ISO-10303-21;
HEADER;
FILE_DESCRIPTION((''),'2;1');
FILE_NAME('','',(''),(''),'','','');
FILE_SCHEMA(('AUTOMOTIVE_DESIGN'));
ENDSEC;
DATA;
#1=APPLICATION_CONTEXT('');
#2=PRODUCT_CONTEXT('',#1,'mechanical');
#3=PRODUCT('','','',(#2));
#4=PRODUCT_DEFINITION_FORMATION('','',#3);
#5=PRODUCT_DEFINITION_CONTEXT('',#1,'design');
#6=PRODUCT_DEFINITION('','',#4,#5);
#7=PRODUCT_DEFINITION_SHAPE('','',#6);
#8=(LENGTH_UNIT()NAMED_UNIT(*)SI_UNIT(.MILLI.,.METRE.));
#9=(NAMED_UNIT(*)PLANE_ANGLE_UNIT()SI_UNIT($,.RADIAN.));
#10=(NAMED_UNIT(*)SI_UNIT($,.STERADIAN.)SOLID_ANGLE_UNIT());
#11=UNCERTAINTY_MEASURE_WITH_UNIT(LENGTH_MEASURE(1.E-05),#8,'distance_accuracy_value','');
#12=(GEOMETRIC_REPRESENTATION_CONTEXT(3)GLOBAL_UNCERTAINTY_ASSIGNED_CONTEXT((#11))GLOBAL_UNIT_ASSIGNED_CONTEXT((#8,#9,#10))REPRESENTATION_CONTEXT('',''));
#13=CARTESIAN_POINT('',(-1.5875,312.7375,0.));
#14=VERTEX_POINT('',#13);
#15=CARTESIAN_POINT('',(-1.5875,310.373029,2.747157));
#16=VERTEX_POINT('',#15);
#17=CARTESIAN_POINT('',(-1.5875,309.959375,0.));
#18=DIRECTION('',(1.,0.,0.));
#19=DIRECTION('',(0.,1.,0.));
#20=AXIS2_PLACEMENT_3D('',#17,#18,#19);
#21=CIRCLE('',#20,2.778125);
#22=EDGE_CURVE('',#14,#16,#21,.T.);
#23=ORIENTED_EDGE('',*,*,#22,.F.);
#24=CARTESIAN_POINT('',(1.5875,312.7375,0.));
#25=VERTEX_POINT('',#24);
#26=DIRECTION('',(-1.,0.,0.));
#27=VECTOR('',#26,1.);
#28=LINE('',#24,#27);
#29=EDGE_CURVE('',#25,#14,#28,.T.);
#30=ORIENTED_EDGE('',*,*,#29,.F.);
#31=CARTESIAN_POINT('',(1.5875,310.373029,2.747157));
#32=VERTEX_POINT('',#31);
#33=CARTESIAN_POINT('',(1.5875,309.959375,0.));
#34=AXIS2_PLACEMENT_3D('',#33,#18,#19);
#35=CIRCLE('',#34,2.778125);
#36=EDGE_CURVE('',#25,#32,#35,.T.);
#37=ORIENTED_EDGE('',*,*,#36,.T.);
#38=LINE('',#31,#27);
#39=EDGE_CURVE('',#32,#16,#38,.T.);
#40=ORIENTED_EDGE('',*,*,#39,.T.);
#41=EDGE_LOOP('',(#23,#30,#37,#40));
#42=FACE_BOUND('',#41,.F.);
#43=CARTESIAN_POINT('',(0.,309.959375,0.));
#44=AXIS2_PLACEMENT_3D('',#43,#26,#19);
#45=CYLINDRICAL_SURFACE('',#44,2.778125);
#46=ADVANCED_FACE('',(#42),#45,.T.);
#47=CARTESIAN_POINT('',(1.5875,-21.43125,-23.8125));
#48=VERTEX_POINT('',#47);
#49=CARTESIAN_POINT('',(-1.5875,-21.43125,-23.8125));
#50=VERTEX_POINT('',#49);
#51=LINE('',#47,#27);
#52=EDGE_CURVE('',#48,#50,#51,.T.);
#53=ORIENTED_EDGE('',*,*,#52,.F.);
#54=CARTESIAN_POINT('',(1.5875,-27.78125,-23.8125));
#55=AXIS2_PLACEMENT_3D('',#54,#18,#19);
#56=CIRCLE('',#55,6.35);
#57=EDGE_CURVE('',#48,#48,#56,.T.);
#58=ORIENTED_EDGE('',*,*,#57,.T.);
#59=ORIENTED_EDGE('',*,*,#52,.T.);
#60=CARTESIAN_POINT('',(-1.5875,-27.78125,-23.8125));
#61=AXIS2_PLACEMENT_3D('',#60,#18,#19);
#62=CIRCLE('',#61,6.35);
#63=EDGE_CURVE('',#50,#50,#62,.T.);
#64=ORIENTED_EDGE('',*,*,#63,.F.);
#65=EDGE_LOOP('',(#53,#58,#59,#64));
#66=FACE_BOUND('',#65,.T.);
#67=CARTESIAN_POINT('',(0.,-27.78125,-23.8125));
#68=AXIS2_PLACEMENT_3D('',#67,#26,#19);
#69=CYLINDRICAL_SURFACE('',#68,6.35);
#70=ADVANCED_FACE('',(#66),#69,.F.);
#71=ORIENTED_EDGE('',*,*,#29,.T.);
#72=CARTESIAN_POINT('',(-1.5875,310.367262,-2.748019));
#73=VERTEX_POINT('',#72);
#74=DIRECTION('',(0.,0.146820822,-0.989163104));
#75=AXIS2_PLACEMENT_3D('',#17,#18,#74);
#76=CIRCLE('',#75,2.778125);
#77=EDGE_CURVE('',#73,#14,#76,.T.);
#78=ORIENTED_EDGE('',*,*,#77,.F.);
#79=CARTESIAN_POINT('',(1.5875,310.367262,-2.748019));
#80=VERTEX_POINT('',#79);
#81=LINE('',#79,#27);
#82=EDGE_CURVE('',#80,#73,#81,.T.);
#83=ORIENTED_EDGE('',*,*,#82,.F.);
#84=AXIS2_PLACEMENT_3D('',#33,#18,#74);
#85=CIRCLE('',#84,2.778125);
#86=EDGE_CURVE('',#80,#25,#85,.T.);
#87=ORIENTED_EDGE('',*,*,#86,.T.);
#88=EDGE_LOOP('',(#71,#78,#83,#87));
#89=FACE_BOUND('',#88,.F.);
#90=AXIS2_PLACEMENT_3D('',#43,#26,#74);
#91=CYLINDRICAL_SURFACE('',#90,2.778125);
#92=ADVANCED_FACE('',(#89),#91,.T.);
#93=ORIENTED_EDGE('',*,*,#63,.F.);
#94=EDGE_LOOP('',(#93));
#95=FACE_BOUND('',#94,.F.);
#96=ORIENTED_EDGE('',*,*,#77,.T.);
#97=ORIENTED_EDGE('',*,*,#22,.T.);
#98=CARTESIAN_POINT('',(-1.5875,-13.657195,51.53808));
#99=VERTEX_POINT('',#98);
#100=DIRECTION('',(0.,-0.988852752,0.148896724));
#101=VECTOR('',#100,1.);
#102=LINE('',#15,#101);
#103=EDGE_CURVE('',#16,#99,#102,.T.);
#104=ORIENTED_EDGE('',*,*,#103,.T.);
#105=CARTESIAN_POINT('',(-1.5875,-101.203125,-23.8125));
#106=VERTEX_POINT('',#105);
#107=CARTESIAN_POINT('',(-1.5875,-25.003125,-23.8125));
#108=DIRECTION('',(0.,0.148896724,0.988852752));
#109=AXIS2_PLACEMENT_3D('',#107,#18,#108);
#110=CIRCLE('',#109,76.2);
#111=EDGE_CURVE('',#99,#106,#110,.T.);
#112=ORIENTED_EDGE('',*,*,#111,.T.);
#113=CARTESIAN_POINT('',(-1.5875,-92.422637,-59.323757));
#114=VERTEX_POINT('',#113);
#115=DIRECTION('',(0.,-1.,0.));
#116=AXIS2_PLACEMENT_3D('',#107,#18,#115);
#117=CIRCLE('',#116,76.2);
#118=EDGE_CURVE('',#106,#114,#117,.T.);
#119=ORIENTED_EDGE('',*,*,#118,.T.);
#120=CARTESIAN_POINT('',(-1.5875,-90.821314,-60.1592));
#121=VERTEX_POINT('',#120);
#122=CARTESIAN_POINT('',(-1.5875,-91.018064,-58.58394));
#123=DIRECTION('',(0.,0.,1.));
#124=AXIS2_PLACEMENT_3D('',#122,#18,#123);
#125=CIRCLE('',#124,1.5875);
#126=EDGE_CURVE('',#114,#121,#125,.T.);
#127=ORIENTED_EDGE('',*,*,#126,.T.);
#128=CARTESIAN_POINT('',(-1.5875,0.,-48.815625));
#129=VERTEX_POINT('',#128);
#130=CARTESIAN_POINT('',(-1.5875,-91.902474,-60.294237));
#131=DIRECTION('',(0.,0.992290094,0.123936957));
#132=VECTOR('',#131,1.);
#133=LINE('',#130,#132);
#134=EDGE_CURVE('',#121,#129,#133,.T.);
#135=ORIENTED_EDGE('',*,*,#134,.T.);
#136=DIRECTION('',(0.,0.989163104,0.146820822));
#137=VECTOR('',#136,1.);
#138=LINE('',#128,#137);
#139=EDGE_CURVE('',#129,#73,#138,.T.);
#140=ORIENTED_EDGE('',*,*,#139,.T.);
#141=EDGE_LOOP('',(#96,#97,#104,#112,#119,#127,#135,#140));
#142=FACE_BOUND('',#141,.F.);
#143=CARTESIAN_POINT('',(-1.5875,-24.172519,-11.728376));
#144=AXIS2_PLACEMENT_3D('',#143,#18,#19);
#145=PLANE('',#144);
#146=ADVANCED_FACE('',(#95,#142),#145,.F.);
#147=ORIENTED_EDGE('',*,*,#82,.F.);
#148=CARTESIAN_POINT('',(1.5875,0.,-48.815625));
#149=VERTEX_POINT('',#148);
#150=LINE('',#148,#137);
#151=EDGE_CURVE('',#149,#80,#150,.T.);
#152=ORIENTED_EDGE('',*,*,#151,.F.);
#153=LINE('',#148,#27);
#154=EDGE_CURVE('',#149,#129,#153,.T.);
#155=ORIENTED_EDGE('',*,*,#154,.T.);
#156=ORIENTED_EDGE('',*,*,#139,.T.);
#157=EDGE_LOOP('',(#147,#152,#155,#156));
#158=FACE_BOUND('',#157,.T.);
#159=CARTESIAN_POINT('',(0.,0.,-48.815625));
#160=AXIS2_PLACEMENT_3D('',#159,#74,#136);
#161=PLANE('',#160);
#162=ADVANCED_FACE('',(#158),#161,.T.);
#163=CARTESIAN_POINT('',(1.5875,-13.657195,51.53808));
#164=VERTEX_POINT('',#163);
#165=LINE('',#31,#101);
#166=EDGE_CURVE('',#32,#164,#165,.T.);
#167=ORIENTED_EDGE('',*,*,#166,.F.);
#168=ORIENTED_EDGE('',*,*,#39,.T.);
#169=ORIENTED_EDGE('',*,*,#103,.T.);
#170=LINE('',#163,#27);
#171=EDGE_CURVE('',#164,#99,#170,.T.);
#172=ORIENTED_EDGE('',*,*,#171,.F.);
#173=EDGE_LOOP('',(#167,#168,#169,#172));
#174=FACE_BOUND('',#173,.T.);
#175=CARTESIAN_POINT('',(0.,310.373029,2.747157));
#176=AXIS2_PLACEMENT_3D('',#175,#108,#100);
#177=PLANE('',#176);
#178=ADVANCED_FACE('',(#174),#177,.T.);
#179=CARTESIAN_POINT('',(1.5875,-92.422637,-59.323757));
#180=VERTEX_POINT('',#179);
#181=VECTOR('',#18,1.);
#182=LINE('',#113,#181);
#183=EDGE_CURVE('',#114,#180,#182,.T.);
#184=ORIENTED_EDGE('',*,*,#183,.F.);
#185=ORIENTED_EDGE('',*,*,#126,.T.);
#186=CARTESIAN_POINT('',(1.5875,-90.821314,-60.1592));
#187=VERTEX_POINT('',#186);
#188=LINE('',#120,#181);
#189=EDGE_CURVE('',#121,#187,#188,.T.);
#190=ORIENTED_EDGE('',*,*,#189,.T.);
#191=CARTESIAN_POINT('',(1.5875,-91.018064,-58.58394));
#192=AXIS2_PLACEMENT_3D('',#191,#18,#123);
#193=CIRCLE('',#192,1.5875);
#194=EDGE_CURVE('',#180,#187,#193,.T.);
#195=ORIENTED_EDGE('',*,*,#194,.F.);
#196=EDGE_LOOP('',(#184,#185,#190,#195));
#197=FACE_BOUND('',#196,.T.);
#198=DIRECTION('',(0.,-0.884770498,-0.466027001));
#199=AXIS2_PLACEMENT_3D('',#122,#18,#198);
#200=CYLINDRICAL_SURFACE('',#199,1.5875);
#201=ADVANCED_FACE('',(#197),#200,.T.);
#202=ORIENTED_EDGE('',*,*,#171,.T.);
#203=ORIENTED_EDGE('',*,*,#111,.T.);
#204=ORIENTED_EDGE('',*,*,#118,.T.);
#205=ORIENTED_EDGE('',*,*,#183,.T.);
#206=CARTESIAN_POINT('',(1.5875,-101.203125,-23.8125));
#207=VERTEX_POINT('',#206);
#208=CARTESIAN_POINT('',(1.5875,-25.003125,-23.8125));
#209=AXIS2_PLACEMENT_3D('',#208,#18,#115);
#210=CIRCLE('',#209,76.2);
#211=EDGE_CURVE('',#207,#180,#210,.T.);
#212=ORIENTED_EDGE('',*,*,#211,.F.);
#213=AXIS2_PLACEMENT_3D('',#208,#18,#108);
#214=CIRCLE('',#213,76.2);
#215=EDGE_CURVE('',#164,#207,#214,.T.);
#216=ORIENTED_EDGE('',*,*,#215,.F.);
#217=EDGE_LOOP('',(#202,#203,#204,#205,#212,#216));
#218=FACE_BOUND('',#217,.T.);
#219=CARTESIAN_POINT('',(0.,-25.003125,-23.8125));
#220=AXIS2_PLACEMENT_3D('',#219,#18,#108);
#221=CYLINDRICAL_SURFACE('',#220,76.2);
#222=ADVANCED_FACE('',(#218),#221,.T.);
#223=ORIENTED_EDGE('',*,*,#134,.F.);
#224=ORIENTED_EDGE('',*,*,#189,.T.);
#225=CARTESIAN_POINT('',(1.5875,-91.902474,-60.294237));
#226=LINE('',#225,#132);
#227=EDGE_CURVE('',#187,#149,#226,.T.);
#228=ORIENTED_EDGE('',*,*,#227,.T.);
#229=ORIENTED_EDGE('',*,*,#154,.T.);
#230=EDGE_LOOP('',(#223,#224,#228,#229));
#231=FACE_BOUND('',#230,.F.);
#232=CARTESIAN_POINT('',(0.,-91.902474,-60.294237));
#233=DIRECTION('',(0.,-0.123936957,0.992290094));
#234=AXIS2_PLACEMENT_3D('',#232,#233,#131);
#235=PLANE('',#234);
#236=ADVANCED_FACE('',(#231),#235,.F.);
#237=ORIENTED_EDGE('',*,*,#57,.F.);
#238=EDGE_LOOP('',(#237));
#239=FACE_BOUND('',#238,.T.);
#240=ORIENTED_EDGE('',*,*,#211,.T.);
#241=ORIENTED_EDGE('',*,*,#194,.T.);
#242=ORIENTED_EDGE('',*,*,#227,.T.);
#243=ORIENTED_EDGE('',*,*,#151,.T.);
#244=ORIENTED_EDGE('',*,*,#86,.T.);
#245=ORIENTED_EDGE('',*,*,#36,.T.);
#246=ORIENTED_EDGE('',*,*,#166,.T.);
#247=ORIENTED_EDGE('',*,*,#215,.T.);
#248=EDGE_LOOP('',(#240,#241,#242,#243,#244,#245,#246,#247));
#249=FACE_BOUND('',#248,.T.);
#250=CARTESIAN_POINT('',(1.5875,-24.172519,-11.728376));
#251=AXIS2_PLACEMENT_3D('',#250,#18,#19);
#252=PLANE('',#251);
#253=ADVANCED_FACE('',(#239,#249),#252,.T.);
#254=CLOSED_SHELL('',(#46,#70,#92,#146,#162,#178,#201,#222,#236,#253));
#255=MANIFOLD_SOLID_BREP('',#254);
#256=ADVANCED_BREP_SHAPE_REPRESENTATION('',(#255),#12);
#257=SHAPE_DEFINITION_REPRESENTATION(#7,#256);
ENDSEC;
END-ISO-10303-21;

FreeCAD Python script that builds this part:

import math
import FreeCAD as App
import Part
import Sketcher
Q = App.Units.Quantity


def edges_at(feature, points):
    """Names of the edges that pass closest to the given points."""
    edges = feature.Shape.Edges
    near = lambda p: min(range(len(edges)), key=lambda i: edges[i].distToShape(Part.Vertex(*p))[0])
    return sorted({f"Edge{near(p) + 1}" for p in points})

doc = App.newDocument("Part")
body = doc.addObject("PartDesign::Body", "Body")

# Sketch on YZ plane
sketch1 = body.newObject("Sketcher::SketchObject", "Sketch")
sketch1.AttachmentSupport = (doc.getObject("YZ_Plane"), [""])
sketch1.MapMode = "FlatFace"
sketch1.addGeometry(Part.ArcOfCircle(Part.Circle(App.Vector(-25.003125, -23.8125, 0), App.Vector(0, 0, 1), 76.2), math.radians(81.437004), math.radians(180)), False)
sketch1.addGeometry(Part.ArcOfCircle(Part.Circle(App.Vector(-25.003125, -23.8125, 0), App.Vector(0, 0, 1), 76.2), math.radians(180), math.radians(208.60464)), False)
sketch1.addGeometry(Part.LineSegment(App.Vector(-91.902474, -60.294237, 0), App.Vector(0, -48.815625, 0)), False)
sketch1.addGeometry(Part.LineSegment(App.Vector(0, -48.815625, 0), App.Vector(310.367262, -2.748019, 0)), False)
sketch1.addGeometry(Part.ArcOfCircle(Part.Circle(App.Vector(309.959375, 0, 0), App.Vector(0, 0, 1), 2.778125), math.radians(-81.557267), math.radians(0)), False)
sketch1.addGeometry(Part.ArcOfCircle(Part.Circle(App.Vector(309.959375, 0, 0), App.Vector(0, 0, 1), 2.778125), math.radians(0), math.radians(81.437004)), False)
sketch1.addGeometry(Part.LineSegment(App.Vector(310.373029, 2.747157, 0), App.Vector(-13.657195, 51.53808, 0)), False)
sketch1.addGeometry(Part.Circle(App.Vector(-27.78125, -23.8125, 0), App.Vector(0, 0, 1), 6.35), False)
sketch1.addConstraint(Sketcher.Constraint("Tangent", 0, 2, 1, 1))
sketch1.addConstraint(Sketcher.Constraint("Coincident", 1, 2, 2, 1))
sketch1.addConstraint(Sketcher.Constraint("Coincident", 2, 2, 3, 1))
sketch1.addConstraint(Sketcher.Constraint("Tangent", 3, 2, 4, 1))
sketch1.addConstraint(Sketcher.Constraint("Tangent", 4, 2, 5, 1))
sketch1.addConstraint(Sketcher.Constraint("Tangent", 5, 2, 6, 1))
sketch1.addConstraint(Sketcher.Constraint("Tangent", 6, 2, 0, 1))
sketch1.addConstraint(Sketcher.Constraint("Equal", 0, 1))
sketch1.addConstraint(Sketcher.Constraint("Equal", 4, 5))
sketch1.addConstraint(Sketcher.Constraint("PointOnObject", 4, 3, -1))
sketch1.addConstraint(Sketcher.Constraint("PointOnObject", 2, 2, -2))
sketch1.addConstraint(Sketcher.Constraint("PointOnObject", 4, 2, -1))
sketch1.addConstraint(Sketcher.Constraint("Horizontal", 1, 3, 7, 3))
sketch1.addConstraint(Sketcher.Constraint("Horizontal", 7, 3, 0, 2))
sketch1.addConstraint(Sketcher.Constraint("Radius", 0, Q("3 in")))
sketch1.addConstraint(Sketcher.Constraint("Diameter", 7, Q("0.5 in")))
sketch1.addConstraint(Sketcher.Constraint("Radius", 4, Q("0.109375 in")))
sketch1.addConstraint(Sketcher.Constraint("DistanceX", 0, 3, -1, 1, Q("0.984375 in")))
sketch1.addConstraint(Sketcher.Constraint("DistanceY", 0, 3, -1, 1, Q("0.9375 in")))
sketch1.addConstraint(Sketcher.Constraint("DistanceX", -1, 1, 4, 3, Q("12.203125 in")))
sketch1.addConstraint(Sketcher.Constraint("DistanceX", 7, 3, -1, 1, Q("1.09375 in")))
sketch1.addConstraint(Sketcher.Constraint("DistanceY", 2, 2, -1, 1, Q("1.921875 in")))
sketch1.addConstraint(Sketcher.Constraint("Distance", 2, Q("92.616539 mm")))
pad1 = body.newObject("PartDesign::Pad", "Pad")
pad1.Profile = sketch1
pad1.Length = Q("0.125 in")
pad1.Midplane = True
doc.recompute()

fillet = body.newObject("PartDesign::Fillet", "Fillet")
fillet.Base = (pad1, edges_at(pad1, [(0, -91.902, -60.294)]))
fillet.Radius = Q("0.0625 in")

doc.recompute()
